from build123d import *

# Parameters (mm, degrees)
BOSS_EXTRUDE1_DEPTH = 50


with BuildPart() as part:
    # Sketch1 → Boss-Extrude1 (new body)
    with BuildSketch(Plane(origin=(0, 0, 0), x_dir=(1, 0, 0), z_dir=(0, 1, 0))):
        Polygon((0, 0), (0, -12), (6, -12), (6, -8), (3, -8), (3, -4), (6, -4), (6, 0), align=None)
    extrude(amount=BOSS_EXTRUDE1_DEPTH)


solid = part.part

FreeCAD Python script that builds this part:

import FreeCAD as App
import Part
import Sketcher
from FreeCAD import Vector

doc = App.newDocument("Part")
body = doc.addObject("PartDesign::Body", "Body")

# Sketch on XZ plane
sketch1 = body.newObject("Sketcher::SketchObject", "Sketch")
sketch1.AttachmentSupport = (doc.getObject("XZ_Plane"), [""])
sketch1.MapMode = "FlatFace"
sketch1.addGeometry([
    Part.LineSegment(Vector(0, 0, 0), Vector(0, 12, 0)),  # 0
    Part.LineSegment(Vector(0, 12, 0), Vector(6, 12, 0)),  # 1
    Part.LineSegment(Vector(6, 12, 0), Vector(6, 8, 0)),  # 2
    Part.LineSegment(Vector(6, 8, 0), Vector(3, 8, 0)),  # 3
    Part.LineSegment(Vector(3, 8, 0), Vector(3, 4, 0)),  # 4
    Part.LineSegment(Vector(3, 4, 0), Vector(6, 4, 0)),  # 5
    Part.LineSegment(Vector(6, 4, 0), Vector(6, 0, 0)),  # 6
    Part.LineSegment(Vector(6, 0, 0), Vector(0, 0, 0)),  # 7
], False)
sketch1.addConstraint([
    Sketcher.Constraint("Coincident", 0, 2, 1, 1),
    Sketcher.Constraint("Coincident", 1, 2, 2, 1),
    Sketcher.Constraint("Coincident", 2, 2, 3, 1),
    Sketcher.Constraint("Coincident", 3, 2, 4, 1),
    Sketcher.Constraint("Coincident", 4, 2, 5, 1),
    Sketcher.Constraint("Coincident", 5, 2, 6, 1),
    Sketcher.Constraint("Coincident", 6, 2, 7, 1),
    Sketcher.Constraint("Coincident", 7, 2, 0, 1),
    Sketcher.Constraint("Vertical", 0),
    Sketcher.Constraint("Horizontal", 1),
    Sketcher.Constraint("Vertical", 2),
    Sketcher.Constraint("Horizontal", 3),
    Sketcher.Constraint("Vertical", 4),
    Sketcher.Constraint("Horizontal", 5),
    Sketcher.Constraint("Vertical", 6),
    Sketcher.Constraint("Horizontal", 7),
    Sketcher.Constraint("Coincident", 7, 2, -1, 1),
    Sketcher.Constraint("Vertical", 2, 2, 5, 2),
    Sketcher.Constraint("Equal", 2, 4),
    Sketcher.Constraint("Equal", 4, 6),
    Sketcher.Constraint("DistanceX", 1, 1, 1, 2, 6.0),
    Sketcher.Constraint("DistanceX", 3, 2, 3, 1, 3.0),
    Sketcher.Constraint("DistanceY", 0, 1, 0, 2, 12.0),
])
pad1 = body.newObject("PartDesign::Pad", "Pad")
pad1.Profile = sketch1
pad1.Length = 50
pad1.Reversed = True

doc.recompute()
